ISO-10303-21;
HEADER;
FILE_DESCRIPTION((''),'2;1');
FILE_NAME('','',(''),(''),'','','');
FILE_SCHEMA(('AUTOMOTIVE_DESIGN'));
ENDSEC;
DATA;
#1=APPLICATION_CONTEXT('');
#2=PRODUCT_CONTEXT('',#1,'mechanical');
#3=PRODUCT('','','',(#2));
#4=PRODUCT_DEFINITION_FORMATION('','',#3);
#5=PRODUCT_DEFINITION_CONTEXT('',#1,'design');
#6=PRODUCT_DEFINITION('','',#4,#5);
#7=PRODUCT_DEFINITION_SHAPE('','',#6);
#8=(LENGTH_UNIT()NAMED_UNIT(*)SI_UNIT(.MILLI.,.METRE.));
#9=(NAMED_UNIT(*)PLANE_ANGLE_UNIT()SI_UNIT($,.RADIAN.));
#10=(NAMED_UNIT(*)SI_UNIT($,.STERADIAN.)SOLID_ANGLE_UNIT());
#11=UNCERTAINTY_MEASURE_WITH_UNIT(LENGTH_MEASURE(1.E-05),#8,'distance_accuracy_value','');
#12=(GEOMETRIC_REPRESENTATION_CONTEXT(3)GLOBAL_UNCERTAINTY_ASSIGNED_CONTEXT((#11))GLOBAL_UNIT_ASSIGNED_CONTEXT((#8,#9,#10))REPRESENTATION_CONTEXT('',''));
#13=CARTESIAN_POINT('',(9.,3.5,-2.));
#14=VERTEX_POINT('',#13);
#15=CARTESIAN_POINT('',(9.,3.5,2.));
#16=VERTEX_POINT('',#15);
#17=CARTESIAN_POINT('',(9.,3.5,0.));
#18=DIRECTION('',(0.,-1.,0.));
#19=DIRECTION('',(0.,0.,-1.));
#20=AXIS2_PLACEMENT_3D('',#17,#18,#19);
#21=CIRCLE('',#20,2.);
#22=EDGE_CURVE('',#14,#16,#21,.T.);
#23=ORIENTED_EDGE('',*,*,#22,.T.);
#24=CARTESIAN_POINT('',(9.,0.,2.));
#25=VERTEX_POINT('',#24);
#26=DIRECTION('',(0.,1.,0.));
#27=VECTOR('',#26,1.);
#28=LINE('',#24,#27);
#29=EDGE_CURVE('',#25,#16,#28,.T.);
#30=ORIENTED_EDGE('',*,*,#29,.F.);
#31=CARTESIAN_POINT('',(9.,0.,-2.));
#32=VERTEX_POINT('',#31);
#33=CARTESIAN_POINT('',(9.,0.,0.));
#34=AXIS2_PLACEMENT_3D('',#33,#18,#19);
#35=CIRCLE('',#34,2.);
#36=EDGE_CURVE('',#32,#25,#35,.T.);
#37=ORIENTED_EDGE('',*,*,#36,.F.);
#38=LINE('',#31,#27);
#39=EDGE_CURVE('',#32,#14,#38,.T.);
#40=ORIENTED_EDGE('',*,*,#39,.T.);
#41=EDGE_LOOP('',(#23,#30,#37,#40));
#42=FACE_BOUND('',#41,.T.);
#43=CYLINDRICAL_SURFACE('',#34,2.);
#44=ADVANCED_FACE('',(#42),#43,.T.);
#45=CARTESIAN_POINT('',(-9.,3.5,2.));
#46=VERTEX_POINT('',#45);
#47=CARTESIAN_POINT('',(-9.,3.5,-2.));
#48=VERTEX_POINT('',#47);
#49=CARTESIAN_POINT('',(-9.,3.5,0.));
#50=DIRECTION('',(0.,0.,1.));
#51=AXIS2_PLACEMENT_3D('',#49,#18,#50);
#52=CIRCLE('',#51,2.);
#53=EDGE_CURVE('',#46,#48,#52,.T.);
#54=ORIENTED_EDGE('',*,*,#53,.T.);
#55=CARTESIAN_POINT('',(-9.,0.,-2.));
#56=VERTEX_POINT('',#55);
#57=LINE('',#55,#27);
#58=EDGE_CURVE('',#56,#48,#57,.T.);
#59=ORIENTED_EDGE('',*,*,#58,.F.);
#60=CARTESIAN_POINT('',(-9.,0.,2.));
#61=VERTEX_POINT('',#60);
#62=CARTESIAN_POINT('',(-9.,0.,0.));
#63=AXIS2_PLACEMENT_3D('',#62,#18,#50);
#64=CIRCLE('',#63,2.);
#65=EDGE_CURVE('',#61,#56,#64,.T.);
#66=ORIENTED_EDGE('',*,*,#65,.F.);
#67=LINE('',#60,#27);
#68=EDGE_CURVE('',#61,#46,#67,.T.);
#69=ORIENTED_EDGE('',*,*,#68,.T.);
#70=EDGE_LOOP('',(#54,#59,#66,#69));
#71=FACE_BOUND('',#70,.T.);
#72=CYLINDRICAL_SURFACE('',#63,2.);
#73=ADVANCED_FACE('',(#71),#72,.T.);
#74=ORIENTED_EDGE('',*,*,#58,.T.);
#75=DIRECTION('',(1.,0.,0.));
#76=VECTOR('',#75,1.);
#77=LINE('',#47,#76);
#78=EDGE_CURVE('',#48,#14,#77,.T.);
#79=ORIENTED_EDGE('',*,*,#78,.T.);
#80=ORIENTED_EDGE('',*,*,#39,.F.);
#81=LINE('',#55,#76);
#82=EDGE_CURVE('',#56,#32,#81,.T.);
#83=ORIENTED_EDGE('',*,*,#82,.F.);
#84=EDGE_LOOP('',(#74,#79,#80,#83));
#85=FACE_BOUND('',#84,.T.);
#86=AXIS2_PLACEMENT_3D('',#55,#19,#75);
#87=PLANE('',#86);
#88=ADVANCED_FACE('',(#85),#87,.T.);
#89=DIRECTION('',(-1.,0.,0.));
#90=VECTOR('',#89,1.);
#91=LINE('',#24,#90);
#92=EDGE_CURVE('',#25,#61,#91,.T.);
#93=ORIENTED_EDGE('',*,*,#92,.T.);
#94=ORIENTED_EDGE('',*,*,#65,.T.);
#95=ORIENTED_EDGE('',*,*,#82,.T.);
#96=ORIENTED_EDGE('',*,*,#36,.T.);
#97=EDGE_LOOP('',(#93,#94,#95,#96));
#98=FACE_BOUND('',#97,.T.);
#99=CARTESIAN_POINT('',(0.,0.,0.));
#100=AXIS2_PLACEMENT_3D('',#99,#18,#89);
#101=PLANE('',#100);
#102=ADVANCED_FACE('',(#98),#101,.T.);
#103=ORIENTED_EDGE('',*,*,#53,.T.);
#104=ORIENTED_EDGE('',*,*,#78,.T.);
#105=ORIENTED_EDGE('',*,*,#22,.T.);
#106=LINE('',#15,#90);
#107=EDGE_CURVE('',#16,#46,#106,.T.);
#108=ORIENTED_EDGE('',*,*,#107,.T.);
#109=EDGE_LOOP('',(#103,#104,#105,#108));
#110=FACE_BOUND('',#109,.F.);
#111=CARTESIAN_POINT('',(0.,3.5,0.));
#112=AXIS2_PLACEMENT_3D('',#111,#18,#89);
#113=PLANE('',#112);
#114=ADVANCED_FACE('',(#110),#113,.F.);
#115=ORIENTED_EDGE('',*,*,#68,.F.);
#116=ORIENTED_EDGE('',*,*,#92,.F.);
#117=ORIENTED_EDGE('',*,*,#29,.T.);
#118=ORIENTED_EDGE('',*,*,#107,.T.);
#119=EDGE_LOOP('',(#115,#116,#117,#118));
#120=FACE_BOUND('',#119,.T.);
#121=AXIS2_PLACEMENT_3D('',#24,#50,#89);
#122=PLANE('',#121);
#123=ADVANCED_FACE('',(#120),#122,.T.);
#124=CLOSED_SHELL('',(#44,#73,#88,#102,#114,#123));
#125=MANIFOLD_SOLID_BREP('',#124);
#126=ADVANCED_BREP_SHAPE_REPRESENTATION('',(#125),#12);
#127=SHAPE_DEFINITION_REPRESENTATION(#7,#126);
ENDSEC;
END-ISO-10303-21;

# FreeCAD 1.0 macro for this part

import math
import FreeCAD as App
import Part
import Sketcher

V = App.Vector

doc = App.newDocument("Part")
body = doc.addObject("PartDesign::Body", "Body")

# Sketch on XZ plane
sketch1 = body.newObject("Sketcher::SketchObject", "Sketch")
sketch1.AttachmentSupport = (doc.getObject("XZ_Plane"), [""])
sketch1.MapMode = "FlatFace"
sketch1.addGeometry([
    Part.LineSegment(V(9, -2, 0), V(-9, -2, 0)),
    Part.ArcOfCircle(Part.Circle(V(-9, 0, 0), V(0, 0, 1), 2), math.radians(90), math.radians(270)),
    Part.LineSegment(V(-9, 2, 0), V(9, 2, 0)),
    Part.ArcOfCircle(Part.Circle(V(9, 0, 0), V(0, 0, 1), 2), math.radians(-90), math.radians(90)),
], False)
sketch1.addConstraint([
    Sketcher.Constraint("Tangent", 0, 2, 1, 2),
    Sketcher.Constraint("Tangent", 1, 1, 2, 1),
    Sketcher.Constraint("Tangent", 2, 2, 3, 2),
    Sketcher.Constraint("Tangent", 3, 1, 0, 1),
    Sketcher.Constraint("Horizontal", 0),
    Sketcher.Constraint("Horizontal", 2),
    Sketcher.Constraint("Symmetric", 1, 3, 3, 3, -1, 1),
    Sketcher.Constraint("Radius", 1, 2.0),
    Sketcher.Constraint("DistanceX", 0, 2, 0, 1, 18.0),
])
pad1 = body.newObject("PartDesign::Pad", "Pad")
pad1.Profile = sketch1
pad1.Length = 3.5
pad1.Reversed = True

doc.recompute()
